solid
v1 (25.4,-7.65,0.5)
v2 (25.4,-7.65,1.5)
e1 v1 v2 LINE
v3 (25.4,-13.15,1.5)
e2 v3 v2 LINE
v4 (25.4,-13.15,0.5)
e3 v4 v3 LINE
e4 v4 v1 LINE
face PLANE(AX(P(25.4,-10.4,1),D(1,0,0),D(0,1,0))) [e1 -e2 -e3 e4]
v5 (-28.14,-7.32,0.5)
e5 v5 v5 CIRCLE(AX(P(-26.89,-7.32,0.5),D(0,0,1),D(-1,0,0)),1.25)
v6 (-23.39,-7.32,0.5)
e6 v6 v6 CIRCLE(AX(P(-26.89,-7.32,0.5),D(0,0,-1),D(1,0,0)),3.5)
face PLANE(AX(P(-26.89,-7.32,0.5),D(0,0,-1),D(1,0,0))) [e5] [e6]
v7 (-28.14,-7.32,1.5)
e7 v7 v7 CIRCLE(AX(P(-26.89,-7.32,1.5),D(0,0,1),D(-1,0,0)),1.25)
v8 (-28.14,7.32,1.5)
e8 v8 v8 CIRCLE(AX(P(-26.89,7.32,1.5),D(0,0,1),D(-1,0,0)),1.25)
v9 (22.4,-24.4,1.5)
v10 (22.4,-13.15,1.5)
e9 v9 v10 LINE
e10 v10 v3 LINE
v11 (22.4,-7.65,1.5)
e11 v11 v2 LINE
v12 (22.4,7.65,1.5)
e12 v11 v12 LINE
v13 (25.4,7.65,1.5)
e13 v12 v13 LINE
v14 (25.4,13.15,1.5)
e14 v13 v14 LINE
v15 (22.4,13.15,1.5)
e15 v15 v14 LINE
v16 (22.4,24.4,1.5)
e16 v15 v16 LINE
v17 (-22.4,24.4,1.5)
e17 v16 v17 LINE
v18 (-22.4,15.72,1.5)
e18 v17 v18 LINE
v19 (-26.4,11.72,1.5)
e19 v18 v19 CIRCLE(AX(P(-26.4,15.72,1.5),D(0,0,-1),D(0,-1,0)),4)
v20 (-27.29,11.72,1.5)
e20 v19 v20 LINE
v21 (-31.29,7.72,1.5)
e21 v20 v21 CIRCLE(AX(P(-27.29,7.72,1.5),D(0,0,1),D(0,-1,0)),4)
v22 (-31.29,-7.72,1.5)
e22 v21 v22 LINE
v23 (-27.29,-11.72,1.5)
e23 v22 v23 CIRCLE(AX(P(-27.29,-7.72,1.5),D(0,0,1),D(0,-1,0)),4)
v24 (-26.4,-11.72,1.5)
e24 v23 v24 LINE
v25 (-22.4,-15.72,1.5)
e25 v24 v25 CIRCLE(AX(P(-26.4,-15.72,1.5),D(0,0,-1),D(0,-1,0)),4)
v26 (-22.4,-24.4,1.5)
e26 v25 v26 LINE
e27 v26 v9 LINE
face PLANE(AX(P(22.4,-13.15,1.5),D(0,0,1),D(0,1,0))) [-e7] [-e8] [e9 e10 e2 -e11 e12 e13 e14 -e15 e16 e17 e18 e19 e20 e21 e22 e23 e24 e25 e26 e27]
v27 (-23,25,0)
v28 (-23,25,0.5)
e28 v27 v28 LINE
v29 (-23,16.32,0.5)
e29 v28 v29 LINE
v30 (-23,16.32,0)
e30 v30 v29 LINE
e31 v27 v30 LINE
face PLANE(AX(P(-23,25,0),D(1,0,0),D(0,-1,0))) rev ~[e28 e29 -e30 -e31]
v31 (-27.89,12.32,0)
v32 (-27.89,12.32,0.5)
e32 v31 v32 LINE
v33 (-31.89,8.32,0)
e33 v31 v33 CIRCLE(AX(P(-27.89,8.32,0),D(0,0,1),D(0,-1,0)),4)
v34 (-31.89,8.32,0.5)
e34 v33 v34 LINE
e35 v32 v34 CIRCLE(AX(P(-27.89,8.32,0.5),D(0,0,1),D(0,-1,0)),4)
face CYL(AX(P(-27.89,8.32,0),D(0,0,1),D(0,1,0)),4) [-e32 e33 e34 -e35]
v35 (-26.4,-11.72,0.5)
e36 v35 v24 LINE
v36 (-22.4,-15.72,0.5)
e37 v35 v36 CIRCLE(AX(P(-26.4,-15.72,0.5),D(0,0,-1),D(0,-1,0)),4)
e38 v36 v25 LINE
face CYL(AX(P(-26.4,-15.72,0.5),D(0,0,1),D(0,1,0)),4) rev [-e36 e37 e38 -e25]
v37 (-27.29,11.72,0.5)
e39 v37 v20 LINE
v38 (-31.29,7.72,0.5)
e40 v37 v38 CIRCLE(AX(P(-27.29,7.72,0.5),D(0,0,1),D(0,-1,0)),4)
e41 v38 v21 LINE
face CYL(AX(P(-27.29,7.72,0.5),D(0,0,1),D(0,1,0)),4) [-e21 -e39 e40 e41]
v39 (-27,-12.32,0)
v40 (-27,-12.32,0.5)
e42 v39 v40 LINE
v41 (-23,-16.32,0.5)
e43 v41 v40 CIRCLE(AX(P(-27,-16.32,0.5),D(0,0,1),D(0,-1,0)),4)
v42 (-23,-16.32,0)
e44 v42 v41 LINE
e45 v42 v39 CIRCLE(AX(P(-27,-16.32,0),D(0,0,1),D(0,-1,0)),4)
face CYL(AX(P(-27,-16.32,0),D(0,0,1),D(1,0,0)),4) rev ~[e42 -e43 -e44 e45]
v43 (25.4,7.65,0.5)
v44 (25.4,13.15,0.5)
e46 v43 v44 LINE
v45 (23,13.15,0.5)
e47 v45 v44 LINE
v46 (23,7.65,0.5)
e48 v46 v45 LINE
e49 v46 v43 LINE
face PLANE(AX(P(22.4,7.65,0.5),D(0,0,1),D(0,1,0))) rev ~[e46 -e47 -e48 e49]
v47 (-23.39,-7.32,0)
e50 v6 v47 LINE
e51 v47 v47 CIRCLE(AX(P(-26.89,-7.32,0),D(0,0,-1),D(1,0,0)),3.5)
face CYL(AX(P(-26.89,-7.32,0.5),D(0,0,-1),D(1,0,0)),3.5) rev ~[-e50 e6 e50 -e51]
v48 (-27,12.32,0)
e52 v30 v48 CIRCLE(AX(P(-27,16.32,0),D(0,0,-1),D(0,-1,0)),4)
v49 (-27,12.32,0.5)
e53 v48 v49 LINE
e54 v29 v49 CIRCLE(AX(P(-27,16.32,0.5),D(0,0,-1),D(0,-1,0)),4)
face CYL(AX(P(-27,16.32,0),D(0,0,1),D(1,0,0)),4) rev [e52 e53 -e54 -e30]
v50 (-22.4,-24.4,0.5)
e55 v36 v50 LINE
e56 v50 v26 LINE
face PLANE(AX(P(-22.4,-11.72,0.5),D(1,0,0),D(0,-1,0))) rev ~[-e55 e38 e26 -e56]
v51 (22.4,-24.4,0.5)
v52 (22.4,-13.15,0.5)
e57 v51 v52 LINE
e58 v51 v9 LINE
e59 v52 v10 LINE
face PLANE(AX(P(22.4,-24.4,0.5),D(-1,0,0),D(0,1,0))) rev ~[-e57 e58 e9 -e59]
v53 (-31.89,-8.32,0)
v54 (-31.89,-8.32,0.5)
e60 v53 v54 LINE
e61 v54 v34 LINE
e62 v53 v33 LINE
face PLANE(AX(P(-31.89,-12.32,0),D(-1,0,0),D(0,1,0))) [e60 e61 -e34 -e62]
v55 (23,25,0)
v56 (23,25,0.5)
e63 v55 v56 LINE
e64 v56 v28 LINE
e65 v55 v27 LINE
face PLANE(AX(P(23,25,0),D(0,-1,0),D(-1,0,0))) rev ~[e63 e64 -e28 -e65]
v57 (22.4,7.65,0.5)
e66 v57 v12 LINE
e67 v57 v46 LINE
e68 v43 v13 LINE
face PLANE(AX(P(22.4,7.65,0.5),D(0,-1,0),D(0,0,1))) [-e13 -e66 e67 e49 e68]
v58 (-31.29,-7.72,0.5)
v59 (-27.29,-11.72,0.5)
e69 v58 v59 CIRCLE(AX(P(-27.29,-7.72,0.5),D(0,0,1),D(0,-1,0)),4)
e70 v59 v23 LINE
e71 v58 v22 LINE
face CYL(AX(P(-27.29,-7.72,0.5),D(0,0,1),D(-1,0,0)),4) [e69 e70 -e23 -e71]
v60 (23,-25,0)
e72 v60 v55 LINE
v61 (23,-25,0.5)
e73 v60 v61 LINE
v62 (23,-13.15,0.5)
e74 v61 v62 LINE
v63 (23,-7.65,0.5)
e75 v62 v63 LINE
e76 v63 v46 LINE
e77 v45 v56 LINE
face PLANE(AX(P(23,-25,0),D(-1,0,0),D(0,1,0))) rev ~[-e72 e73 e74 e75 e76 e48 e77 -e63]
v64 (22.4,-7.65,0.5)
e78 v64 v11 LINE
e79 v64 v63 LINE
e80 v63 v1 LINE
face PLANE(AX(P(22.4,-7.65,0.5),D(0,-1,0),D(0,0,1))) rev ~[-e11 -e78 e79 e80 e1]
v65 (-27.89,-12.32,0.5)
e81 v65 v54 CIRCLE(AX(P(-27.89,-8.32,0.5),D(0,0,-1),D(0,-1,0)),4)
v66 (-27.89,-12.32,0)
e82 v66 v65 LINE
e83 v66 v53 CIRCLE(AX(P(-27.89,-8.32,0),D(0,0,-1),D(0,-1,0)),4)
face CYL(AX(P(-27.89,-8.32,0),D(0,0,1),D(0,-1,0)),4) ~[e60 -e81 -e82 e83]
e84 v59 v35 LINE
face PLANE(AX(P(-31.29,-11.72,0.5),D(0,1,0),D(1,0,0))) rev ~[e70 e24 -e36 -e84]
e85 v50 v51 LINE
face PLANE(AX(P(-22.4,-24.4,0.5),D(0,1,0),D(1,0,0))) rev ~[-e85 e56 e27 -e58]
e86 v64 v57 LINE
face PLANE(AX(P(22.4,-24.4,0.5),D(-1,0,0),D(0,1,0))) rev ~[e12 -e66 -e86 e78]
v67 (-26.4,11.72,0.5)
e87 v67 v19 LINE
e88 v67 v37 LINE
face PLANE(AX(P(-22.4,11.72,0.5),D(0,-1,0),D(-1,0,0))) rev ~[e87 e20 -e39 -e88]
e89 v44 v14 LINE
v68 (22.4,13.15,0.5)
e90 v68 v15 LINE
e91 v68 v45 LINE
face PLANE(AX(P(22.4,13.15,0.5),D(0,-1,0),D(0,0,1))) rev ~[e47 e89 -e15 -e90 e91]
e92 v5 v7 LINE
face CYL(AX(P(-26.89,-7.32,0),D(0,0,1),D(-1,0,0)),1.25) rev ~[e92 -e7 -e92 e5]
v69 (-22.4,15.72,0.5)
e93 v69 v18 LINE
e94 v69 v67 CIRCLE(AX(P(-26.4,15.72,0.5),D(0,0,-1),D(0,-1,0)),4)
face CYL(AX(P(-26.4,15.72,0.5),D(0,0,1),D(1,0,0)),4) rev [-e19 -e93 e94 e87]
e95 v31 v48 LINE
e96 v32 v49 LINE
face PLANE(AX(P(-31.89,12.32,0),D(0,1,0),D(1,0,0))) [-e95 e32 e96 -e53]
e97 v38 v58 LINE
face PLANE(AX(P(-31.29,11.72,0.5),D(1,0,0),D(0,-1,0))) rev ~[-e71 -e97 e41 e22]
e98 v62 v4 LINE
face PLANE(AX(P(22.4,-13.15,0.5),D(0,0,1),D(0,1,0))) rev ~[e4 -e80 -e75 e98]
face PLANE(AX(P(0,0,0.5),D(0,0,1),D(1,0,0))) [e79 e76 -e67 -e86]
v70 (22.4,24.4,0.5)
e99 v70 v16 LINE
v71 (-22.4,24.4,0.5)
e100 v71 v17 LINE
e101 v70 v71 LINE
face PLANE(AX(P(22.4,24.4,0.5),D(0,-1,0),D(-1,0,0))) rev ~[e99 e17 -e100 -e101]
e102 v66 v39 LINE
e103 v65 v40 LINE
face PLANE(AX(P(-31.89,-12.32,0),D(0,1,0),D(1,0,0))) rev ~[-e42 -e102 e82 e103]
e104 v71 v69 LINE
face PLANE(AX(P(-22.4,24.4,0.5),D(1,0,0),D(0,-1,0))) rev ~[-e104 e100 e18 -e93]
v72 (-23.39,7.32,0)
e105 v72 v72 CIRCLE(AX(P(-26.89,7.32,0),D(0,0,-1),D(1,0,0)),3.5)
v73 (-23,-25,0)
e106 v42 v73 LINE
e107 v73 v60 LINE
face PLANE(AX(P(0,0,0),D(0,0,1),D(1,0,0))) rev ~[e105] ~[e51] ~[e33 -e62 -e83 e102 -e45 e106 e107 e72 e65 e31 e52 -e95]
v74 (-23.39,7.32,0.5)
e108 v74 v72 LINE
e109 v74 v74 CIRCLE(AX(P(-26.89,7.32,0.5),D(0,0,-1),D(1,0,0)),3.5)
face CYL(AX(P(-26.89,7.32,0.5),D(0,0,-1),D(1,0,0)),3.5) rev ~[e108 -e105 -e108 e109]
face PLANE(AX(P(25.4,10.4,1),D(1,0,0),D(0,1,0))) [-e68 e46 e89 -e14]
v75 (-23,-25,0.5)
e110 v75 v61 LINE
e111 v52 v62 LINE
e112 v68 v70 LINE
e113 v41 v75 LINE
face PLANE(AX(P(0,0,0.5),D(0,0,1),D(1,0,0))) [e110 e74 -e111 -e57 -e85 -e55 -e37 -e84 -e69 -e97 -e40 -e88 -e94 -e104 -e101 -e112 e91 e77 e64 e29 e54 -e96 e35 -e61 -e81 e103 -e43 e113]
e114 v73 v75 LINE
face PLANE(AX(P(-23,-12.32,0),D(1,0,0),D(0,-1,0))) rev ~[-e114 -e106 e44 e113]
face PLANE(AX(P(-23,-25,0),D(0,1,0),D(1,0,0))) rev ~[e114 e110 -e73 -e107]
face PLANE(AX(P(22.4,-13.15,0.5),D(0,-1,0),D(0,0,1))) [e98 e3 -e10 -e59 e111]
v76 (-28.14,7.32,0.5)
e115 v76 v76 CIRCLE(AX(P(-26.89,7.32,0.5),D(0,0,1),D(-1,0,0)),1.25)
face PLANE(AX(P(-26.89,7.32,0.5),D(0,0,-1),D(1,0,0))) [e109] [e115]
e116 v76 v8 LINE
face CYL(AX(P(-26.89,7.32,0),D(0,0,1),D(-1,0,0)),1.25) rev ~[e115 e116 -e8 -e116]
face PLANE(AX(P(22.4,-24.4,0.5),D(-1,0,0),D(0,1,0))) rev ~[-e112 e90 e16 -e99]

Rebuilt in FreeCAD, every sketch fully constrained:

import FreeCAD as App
import Part
import Sketcher


def edges_at(feature, points):
    """Names of the edges that pass closest to the given points."""
    edges = feature.Shape.Edges
    near = lambda p: min(range(len(edges)), key=lambda i: edges[i].distToShape(Part.Vertex(*p))[0])
    return sorted({f"Edge{near(p) + 1}" for p in points})


def add_polygon(sketch, points):
    """Adds a closed chain of lines whose ends are joined by coincident constraints."""
    first, n = sketch.GeometryCount, len(points)
    for a, b in zip(points, points[1:] + points[:1]):
        sketch.addGeometry(Part.LineSegment(App.Vector(*a, 0), App.Vector(*b, 0)), False)
    for i in range(n):
        sketch.addConstraint(Sketcher.Constraint("Coincident", first + i, 2, first + (i + 1) % n, 1))

doc = App.newDocument("Part")
body = doc.addObject("PartDesign::Body", "Body")

sketch1 = body.newObject("Sketcher::SketchObject", "Sketch")
sketch1.AttachmentSupport = (doc.getObject("XY_Plane"), [""])
sketch1.MapMode = "FlatFace"
add_polygon(sketch1, [(-23, -25), (23, -25), (23, 25), (-23, 25), (-23, 12), (-32, 12), (-32, -12), (-23, -12)])
sketch1.addConstraint(Sketcher.Constraint("Horizontal", 0))
sketch1.addConstraint(Sketcher.Constraint("Vertical", 1))
sketch1.addConstraint(Sketcher.Constraint("Horizontal", 2))
sketch1.addConstraint(Sketcher.Constraint("Vertical", 3))
sketch1.addConstraint(Sketcher.Constraint("Horizontal", 4))
sketch1.addConstraint(Sketcher.Constraint("Vertical", 5))
sketch1.addConstraint(Sketcher.Constraint("Horizontal", 6))
sketch1.addConstraint(Sketcher.Constraint("Vertical", 7))
sketch1.addConstraint(Sketcher.Constraint("Symmetric", 0, 2, 2, 2, -1, 1))
sketch1.addConstraint(Sketcher.Constraint("Symmetric", 3, 2, 6, 2, -1))
sketch1.addConstraint(Sketcher.Constraint("DistanceX", 0, 1, 0, 2, 46.0))
sketch1.addConstraint(Sketcher.Constraint("DistanceY", 1, 1, 1, 2, 50.0))
sketch1.addConstraint(Sketcher.Constraint("DistanceX", 4, 2, 4, 1, 8.89))
sketch1.addConstraint(Sketcher.Constraint("DistanceY", 3, 2, 3, 1, 12.68))
pad1 = body.newObject("PartDesign::Pad", "Pad")
pad1.Profile = sketch1
pad1.Length = 0.5

sketch2 = body.newObject("Sketcher::SketchObject", "Sketch001")
sketch2.AttachmentSupport = (doc.getObject("XY_Plane"), [""])
sketch2.MapMode = "FlatFace"
sketch2.AttachmentOffset = App.Placement(App.Vector(0, 0, 0.5), App.Rotation())
add_polygon(sketch2, [(-22, -24), (22, -24), (22, 24), (-22, 24), (-22, 12), (-31, 12), (-31, -12), (-22, -12)])
sketch2.addConstraint(Sketcher.Constraint("Horizontal", 0))
sketch2.addConstraint(Sketcher.Constraint("Vertical", 1))
sketch2.addConstraint(Sketcher.Constraint("Horizontal", 2))
sketch2.addConstraint(Sketcher.Constraint("Vertical", 3))
sketch2.addConstraint(Sketcher.Constraint("Horizontal", 4))
sketch2.addConstraint(Sketcher.Constraint("Vertical", 5))
sketch2.addConstraint(Sketcher.Constraint("Horizontal", 6))
sketch2.addConstraint(Sketcher.Constraint("Vertical", 7))
sketch2.addConstraint(Sketcher.Constraint("Symmetric", 0, 2, 2, 2, -1, 1))
sketch2.addConstraint(Sketcher.Constraint("Symmetric", 3, 2, 6, 2, -1))
sketch2.addConstraint(Sketcher.Constraint("DistanceX", 0, 1, 0, 2, 44.8))
sketch2.addConstraint(Sketcher.Constraint("DistanceY", 1, 1, 1, 2, 48.8))
sketch2.addConstraint(Sketcher.Constraint("DistanceX", 4, 2, 4, 1, 8.89))
sketch2.addConstraint(Sketcher.Constraint("DistanceY", 3, 2, 3, 1, 12.68))
pad2 = body.newObject("PartDesign::Pad", "Pad001")
pad2.Profile = sketch2
pad2.Length = 1
doc.recompute()

fillet = body.newObject("PartDesign::Fillet", "Fillet")
fillet.Base = (pad2, edges_at(pad2, [
    (-31.89, 12.32, 0.25),
    (-31.29, 11.72, 1),
    (-23, 12.32, 0.25),
    (-22.4, 11.72, 1),
    (-31.29, -11.72, 1),
    (-31.89, -12.32, 0.25),
    (-23, -12.32, 0.25),
    (-22.4, -11.72, 1),
]))
fillet.Radius = 4

sketch3 = body.newObject("Sketcher::SketchObject", "Sketch002")
sketch3.AttachmentSupport = (doc.getObject("XY_Plane"), [""])
sketch3.MapMode = "FlatFace"
sketch3.addGeometry(Part.Circle(App.Vector(-26.9, 7.3, 0), App.Vector(0, 0, 1), 1.2), False)
sketch3.addGeometry(Part.Circle(App.Vector(-26.9, -7.3, 0), App.Vector(0, 0, 1), 1.2), False)
sketch3.addConstraint(Sketcher.Constraint("Equal", 0, 1))
sketch3.addConstraint(Sketcher.Constraint("Symmetric", 0, 3, 1, 3, -1))
sketch3.addConstraint(Sketcher.Constraint("Diameter", 0, 2.5))
sketch3.addConstraint(Sketcher.Constraint("DistanceX", 0, 3, -1, 1, 26.89))
sketch3.addConstraint(Sketcher.Constraint("DistanceY", -1, 1, 0, 3, 7.32))
doc.recompute()
hole = body.newObject("PartDesign::Hole", "Hole")
hole.Profile = sketch3
hole.ThreadType = "None"
hole.Diameter = 2.5
hole.DepthType = "ThroughAll"
hole.HoleCutType = "Counterbore"
hole.HoleCutDiameter = 7
hole.HoleCutDepth = 0.5
hole.Reversed = True

sketch4 = body.newObject("Sketcher::SketchObject", "Sketch003")
sketch4.AttachmentSupport = (doc.getObject("YZ_Plane"), [""])
sketch4.MapMode = "FlatFace"
sketch4.AttachmentOffset = App.Placement(App.Vector(0, 0, 22.4), App.Rotation())
add_polygon(sketch4, [(-13.2, 1.5), (-13.2, 0.5), (-7.7, 0.5), (-7.7, 1.5)])
add_polygon(sketch4, [(7.7, 1.5), (7.7, 0.5), (13.2, 0.5), (13.2, 1.5)])
sketch4.addConstraint(Sketcher.Constraint("Vertical", 0))
sketch4.addConstraint(Sketcher.Constraint("Horizontal", 1))
sketch4.addConstraint(Sketcher.Constraint("Vertical", 2))
sketch4.addConstraint(Sketcher.Constraint("Horizontal", 3))
sketch4.addConstraint(Sketcher.Constraint("Vertical", 4))
sketch4.addConstraint(Sketcher.Constraint("Horizontal", 5))
sketch4.addConstraint(Sketcher.Constraint("Vertical", 6))
sketch4.addConstraint(Sketcher.Constraint("Horizontal", 7))
sketch4.addConstraint(Sketcher.Constraint("Symmetric", 1, 2, 4, 2, -2))
sketch4.addConstraint(Sketcher.Constraint("Symmetric", 3, 2, 6, 2, -2))
sketch4.addConstraint(Sketcher.Constraint("DistanceY", 0, 2, 0, 1, 1.0))
sketch4.addConstraint(Sketcher.Constraint("DistanceX", 1, 1, 1, 2, 5.5))
sketch4.addConstraint(Sketcher.Constraint("DistanceY", -1, 1, 0, 2, 0.5))
sketch4.addConstraint(Sketcher.Constraint("DistanceX", 1, 2, 4, 2, 15.3))
pad3 = body.newObject("PartDesign::Pad", "Pad002")
pad3.Profile = sketch4
pad3.Length = 3

doc.recompute()
